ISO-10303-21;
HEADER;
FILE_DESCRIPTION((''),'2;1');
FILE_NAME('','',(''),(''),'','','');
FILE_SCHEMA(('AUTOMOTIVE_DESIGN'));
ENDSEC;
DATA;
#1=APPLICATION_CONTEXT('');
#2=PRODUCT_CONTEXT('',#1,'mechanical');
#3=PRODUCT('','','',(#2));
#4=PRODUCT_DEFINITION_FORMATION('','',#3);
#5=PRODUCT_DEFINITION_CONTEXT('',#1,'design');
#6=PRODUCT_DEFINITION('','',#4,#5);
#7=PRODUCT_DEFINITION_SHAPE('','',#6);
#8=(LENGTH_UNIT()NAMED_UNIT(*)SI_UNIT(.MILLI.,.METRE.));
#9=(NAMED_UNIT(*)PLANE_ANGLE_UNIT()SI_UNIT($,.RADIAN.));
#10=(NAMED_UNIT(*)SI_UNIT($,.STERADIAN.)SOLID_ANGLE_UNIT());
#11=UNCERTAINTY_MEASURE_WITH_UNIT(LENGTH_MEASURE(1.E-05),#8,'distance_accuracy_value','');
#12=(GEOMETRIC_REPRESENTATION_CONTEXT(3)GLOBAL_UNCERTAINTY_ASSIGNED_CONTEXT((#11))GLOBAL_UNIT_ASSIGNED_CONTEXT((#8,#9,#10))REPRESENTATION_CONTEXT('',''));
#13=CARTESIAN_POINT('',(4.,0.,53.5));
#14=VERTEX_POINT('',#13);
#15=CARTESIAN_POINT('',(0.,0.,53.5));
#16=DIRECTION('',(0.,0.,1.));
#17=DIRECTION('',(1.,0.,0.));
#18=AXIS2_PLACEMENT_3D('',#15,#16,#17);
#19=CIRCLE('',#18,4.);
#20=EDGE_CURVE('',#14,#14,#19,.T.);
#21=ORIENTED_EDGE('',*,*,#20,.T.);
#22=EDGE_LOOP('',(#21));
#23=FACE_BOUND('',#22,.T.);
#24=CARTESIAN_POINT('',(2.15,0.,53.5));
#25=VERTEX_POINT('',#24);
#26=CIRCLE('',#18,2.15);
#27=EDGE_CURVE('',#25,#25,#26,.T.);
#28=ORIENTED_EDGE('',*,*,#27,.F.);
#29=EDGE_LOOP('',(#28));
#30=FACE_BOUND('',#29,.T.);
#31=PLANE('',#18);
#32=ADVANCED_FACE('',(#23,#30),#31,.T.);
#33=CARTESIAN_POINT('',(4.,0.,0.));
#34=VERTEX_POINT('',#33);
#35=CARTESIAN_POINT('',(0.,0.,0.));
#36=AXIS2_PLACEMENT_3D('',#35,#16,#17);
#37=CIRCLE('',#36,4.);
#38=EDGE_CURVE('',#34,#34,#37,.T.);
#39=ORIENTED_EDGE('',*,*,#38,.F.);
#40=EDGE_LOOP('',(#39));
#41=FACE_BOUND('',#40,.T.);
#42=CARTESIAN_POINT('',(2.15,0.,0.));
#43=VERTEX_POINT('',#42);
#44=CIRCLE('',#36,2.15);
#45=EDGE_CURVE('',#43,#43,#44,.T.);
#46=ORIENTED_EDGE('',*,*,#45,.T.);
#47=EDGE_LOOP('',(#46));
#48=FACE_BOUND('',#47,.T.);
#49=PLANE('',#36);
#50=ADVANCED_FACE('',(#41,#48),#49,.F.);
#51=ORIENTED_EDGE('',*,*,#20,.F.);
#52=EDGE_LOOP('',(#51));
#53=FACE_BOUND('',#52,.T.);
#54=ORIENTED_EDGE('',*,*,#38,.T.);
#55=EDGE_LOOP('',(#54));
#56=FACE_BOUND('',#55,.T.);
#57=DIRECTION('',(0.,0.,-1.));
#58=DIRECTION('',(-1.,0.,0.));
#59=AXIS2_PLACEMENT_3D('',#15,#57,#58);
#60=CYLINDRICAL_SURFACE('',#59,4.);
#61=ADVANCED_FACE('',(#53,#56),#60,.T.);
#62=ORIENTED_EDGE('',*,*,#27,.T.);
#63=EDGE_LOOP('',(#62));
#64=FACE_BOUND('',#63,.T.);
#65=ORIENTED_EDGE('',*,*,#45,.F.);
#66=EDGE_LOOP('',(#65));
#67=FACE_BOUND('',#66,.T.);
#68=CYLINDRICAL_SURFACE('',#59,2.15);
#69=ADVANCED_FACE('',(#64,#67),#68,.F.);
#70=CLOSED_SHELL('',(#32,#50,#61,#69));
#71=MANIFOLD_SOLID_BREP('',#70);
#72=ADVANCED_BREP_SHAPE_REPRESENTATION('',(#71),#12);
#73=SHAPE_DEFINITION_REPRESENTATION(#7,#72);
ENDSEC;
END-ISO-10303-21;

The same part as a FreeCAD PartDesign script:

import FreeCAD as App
import Part
import Sketcher

V = App.Vector
Q = App.Units.Quantity

doc = App.newDocument("Part")
params = doc.addObject("Spreadsheet::Sheet", "Params")
for row, (alias, value) in enumerate([
    ("sketch1_diameter", "8 mm"),
    ("sketch1_diameter2", "4.3 mm"),
    ("pad1_length", "53.5 mm"),
], start=1):
    params.set(f"A{row}", alias)
    params.set(f"B{row}", "=" + value)
    params.setAlias(f"B{row}", alias)

body = doc.addObject("PartDesign::Body", "Body")

# Sketch on XY plane
sketch1 = body.newObject("Sketcher::SketchObject", "Sketch")
sketch1.AttachmentSupport = (doc.getObject("XY_Plane"), [""])
sketch1.MapMode = "FlatFace"
sketch1.addGeometry(Part.Circle(V(0, 0, 0), V(0, 0, 1), 4), False)
sketch1.addGeometry(Part.Circle(V(0, 0, 0), V(0, 0, 1), 2.15), False)
sketch1.addConstraint(Sketcher.Constraint("Coincident", 0, 3, -1, 1))
sketch1.addConstraint(Sketcher.Constraint("Coincident", 1, 3, -1, 1))
sketch1.addConstraint(Sketcher.Constraint("Diameter", 0, Q("8 mm")))
sketch1.addConstraint(Sketcher.Constraint("Diameter", 1, Q("4.3 mm")))
sketch1.setExpression("Constraints[2]", "Params.sketch1_diameter")
sketch1.setExpression("Constraints[3]", "Params.sketch1_diameter2")
pad1 = body.newObject("PartDesign::Pad", "Pad")
pad1.Profile = sketch1
pad1.setExpression("Length", "Params.pad1_length")

doc.recompute()
